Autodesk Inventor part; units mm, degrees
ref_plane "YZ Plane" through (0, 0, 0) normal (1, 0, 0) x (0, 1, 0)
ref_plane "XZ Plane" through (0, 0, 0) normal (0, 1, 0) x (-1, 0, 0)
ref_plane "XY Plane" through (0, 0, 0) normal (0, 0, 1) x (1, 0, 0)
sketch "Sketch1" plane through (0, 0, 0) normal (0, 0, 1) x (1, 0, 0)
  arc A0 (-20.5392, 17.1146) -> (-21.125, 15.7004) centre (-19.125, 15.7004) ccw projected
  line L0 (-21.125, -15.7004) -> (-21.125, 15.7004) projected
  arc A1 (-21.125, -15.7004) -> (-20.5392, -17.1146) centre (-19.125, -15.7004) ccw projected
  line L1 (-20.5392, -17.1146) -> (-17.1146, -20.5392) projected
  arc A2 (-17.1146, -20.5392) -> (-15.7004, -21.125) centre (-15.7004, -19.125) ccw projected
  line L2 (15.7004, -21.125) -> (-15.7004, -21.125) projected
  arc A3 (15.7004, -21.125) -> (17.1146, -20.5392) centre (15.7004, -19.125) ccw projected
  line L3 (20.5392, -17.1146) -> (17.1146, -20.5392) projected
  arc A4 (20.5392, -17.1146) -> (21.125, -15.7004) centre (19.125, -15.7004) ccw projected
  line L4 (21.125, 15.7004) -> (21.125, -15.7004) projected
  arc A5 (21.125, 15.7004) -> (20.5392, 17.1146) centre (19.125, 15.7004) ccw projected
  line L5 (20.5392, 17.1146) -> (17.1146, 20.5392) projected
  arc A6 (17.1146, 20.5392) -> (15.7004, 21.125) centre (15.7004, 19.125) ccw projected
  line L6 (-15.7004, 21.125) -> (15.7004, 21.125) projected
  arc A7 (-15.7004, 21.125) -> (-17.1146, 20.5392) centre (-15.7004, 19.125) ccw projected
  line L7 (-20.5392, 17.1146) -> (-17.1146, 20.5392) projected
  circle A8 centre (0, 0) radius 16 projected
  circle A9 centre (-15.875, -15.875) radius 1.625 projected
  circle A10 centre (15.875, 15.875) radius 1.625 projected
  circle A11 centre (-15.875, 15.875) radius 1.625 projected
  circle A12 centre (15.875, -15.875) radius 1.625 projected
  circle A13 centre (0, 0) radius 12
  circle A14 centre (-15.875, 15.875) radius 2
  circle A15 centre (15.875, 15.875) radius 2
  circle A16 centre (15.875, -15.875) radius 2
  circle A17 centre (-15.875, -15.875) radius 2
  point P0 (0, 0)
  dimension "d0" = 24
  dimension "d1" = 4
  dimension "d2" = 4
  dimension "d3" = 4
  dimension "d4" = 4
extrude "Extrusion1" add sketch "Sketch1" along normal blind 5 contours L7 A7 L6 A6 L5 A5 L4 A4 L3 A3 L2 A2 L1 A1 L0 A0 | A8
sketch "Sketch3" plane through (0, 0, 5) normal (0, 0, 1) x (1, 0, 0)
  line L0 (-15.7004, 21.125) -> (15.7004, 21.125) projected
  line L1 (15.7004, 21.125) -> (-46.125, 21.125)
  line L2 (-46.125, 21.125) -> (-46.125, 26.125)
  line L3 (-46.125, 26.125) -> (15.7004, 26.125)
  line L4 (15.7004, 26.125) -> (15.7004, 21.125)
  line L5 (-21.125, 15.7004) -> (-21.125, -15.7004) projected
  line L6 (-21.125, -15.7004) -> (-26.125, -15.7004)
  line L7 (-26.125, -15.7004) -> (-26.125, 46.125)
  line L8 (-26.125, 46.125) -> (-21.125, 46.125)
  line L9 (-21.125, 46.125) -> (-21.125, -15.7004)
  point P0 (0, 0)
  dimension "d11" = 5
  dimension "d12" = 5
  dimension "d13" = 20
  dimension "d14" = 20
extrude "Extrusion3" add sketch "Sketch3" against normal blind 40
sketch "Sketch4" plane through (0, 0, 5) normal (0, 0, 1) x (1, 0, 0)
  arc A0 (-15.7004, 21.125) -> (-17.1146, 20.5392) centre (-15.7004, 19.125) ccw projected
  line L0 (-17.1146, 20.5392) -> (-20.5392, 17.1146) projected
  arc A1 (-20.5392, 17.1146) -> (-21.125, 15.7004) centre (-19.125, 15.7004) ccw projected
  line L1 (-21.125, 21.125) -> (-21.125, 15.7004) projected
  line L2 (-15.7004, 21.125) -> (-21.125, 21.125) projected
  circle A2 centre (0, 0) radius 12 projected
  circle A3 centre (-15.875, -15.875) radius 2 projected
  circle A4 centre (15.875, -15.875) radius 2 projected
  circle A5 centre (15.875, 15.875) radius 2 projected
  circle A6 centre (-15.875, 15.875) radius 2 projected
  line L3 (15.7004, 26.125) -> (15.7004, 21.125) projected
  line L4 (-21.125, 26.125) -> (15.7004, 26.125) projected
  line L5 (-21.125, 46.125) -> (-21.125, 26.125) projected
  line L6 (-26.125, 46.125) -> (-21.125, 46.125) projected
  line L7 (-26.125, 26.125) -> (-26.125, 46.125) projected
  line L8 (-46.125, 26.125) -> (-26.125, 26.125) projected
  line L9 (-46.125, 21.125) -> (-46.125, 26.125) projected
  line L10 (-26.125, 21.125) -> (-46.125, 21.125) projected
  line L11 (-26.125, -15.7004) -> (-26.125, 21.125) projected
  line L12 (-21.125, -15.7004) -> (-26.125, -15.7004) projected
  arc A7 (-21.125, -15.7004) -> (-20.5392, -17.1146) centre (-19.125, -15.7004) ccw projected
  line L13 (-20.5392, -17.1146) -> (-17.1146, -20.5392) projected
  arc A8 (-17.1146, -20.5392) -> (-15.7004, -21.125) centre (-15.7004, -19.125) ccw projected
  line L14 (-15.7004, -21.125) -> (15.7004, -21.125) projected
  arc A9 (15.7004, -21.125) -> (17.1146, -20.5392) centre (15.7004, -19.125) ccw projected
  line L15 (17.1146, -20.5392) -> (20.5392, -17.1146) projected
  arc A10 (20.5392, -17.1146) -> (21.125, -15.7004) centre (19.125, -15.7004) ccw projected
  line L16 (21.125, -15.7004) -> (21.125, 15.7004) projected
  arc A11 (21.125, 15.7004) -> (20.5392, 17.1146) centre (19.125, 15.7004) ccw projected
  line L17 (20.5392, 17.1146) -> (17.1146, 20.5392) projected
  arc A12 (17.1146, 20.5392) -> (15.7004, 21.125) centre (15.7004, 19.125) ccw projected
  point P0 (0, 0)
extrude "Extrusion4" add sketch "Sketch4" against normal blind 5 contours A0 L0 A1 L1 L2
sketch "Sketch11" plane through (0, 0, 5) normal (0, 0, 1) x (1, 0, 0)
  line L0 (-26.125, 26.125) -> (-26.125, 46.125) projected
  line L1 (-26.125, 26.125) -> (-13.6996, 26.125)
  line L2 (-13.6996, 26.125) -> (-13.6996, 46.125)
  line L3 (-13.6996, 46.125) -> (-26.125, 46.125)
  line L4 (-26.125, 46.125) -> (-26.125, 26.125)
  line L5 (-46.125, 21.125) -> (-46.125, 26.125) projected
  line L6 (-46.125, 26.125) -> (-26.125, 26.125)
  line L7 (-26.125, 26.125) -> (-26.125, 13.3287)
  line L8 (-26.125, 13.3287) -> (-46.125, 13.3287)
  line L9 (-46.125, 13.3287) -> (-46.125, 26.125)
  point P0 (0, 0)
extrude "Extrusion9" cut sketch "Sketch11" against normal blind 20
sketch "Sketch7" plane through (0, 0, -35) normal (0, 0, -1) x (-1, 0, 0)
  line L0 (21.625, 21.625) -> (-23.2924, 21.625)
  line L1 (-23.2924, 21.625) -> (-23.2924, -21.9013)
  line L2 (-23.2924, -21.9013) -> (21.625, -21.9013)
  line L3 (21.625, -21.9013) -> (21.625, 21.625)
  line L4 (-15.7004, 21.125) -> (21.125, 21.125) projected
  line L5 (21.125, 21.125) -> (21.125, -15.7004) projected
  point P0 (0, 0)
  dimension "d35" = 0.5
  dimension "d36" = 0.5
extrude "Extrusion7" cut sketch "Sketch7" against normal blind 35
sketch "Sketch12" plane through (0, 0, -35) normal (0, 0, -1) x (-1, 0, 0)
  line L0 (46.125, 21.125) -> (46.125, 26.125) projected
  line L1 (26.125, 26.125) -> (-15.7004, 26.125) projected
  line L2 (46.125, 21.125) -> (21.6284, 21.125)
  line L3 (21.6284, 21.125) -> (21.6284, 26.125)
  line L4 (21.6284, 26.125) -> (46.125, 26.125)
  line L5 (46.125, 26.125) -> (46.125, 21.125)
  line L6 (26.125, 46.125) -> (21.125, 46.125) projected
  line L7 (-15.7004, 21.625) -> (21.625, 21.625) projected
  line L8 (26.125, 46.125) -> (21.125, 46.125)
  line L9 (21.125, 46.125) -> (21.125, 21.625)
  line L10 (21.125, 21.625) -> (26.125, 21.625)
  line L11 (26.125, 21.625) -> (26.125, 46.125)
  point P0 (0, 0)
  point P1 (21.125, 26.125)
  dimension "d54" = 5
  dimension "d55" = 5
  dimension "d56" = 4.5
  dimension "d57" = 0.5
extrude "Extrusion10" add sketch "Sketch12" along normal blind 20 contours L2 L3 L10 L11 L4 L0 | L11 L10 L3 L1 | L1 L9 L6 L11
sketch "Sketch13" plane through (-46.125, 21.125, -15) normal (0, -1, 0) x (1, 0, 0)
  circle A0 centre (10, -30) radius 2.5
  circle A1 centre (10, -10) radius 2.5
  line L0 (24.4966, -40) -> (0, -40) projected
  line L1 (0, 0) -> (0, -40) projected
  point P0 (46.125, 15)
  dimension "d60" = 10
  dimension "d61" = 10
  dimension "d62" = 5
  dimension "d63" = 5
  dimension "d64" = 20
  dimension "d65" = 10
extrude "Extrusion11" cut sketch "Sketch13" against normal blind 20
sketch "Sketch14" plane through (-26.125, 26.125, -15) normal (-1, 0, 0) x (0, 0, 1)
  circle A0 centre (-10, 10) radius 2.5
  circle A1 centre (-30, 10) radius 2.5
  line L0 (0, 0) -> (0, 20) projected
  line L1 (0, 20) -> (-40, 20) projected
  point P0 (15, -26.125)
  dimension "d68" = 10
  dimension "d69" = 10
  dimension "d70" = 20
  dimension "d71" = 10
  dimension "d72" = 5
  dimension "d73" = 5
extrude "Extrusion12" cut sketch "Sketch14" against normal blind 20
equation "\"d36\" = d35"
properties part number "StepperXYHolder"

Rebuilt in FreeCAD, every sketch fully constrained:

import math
import FreeCAD as App
import Part
import Sketcher

doc = App.newDocument("Part")
body = doc.addObject("PartDesign::Body", "Body")

# Sketch on XY plane
sketch1 = doc.addObject("Sketcher::SketchObject", "Sketch")
body.addObject(sketch1)
sketch1.AttachmentSupport = (doc.XY_Plane, [""])
sketch1.MapMode = "FlatFace"
sketch1.addGeometry([
    Part.LineSegment(App.Vector(-17.1, 20.5, 0), App.Vector(-20.5, 17.1, 0)),  # 0
    Part.ArcOfCircle(Part.Circle(App.Vector(-19.1, 15.7, 0), App.Vector(0, 0, 1), 2), math.radians(135), math.radians(180)),  # 1
    Part.LineSegment(App.Vector(-21.1, 15.7, 0), App.Vector(-21.1, -15.7, 0)),  # 2
    Part.ArcOfCircle(Part.Circle(App.Vector(-19.1, -15.7, 0), App.Vector(0, 0, 1), 2), math.radians(180), math.radians(225)),  # 3
    Part.LineSegment(App.Vector(-20.5, -17.1, 0), App.Vector(-17.1, -20.5, 0)),  # 4
    Part.ArcOfCircle(Part.Circle(App.Vector(-15.7, -19.1, 0), App.Vector(0, 0, 1), 2), math.radians(-135), math.radians(-90)),  # 5
    Part.LineSegment(App.Vector(-15.7, -21.1, 0), App.Vector(15.7, -21.1, 0)),  # 6
    Part.ArcOfCircle(Part.Circle(App.Vector(15.7, -19.1, 0), App.Vector(0, 0, 1), 2), math.radians(-90), math.radians(-45)),  # 7
    Part.LineSegment(App.Vector(17.1, -20.5, 0), App.Vector(20.5, -17.1, 0)),  # 8
    Part.ArcOfCircle(Part.Circle(App.Vector(19.1, -15.7, 0), App.Vector(0, 0, 1), 2), math.radians(-45), math.radians(0)),  # 9
    Part.LineSegment(App.Vector(21.1, -15.7, 0), App.Vector(21.1, 15.7, 0)),  # 10
    Part.ArcOfCircle(Part.Circle(App.Vector(19.1, 15.7, 0), App.Vector(0, 0, 1), 2), math.radians(0), math.radians(45)),  # 11
    Part.LineSegment(App.Vector(20.5, 17.1, 0), App.Vector(17.1, 20.5, 0)),  # 12
    Part.ArcOfCircle(Part.Circle(App.Vector(15.7, 19.1, 0), App.Vector(0, 0, 1), 2), math.radians(45), math.radians(90)),  # 13
    Part.LineSegment(App.Vector(15.7, 21.1, 0), App.Vector(-15.7, 21.1, 0)),  # 14
    Part.ArcOfCircle(Part.Circle(App.Vector(-15.7, 19.1, 0), App.Vector(0, 0, 1), 2), math.radians(90), math.radians(135)),  # 15
    Part.Circle(App.Vector(-15.9, -15.9, 0), App.Vector(0, 0, 1), 2),  # 16
    Part.Circle(App.Vector(15.9, -15.9, 0), App.Vector(0, 0, 1), 2),  # 17
    Part.Circle(App.Vector(-15.9, 15.9, 0), App.Vector(0, 0, 1), 2),  # 18
    Part.Circle(App.Vector(15.9, 15.9, 0), App.Vector(0, 0, 1), 2),  # 19
    Part.Circle(App.Vector(0, 0, 0), App.Vector(0, 0, 1), 12),  # 20
], False)
sketch1.addConstraint([
    Sketcher.Constraint("Tangent", 0, 2, 1, 1),
    Sketcher.Constraint("Tangent", 1, 2, 2, 1),
    Sketcher.Constraint("Tangent", 2, 2, 3, 1),
    Sketcher.Constraint("Tangent", 3, 2, 4, 1),
    Sketcher.Constraint("Tangent", 4, 2, 5, 1),
    Sketcher.Constraint("Tangent", 5, 2, 6, 1),
    Sketcher.Constraint("Tangent", 6, 2, 7, 1),
    Sketcher.Constraint("Tangent", 7, 2, 8, 1),
    Sketcher.Constraint("Tangent", 8, 2, 9, 1),
    Sketcher.Constraint("Tangent", 9, 2, 10, 1),
    Sketcher.Constraint("Tangent", 10, 2, 11, 1),
    Sketcher.Constraint("Tangent", 11, 2, 12, 1),
    Sketcher.Constraint("Tangent", 12, 2, 13, 1),
    Sketcher.Constraint("Tangent", 13, 2, 14, 1),
    Sketcher.Constraint("Tangent", 14, 2, 15, 1),
    Sketcher.Constraint("Tangent", 15, 2, 0, 1),
    Sketcher.Constraint("Vertical", 2),
    Sketcher.Constraint("Horizontal", 6),
    Sketcher.Constraint("Vertical", 10),
    Sketcher.Constraint("Horizontal", 14),
    Sketcher.Constraint("Coincident", 20, 3, -1, 1),
    Sketcher.Constraint("Equal", 1, 3),
    Sketcher.Constraint("Equal", 3, 5),
    Sketcher.Constraint("Equal", 5, 7),
    Sketcher.Constraint("Equal", 7, 9),
    Sketcher.Constraint("Equal", 9, 11),
    Sketcher.Constraint("Equal", 11, 13),
    Sketcher.Constraint("Equal", 13, 15),
    Sketcher.Constraint("Equal", 15, 16),
    Sketcher.Constraint("Equal", 16, 17),
    Sketcher.Constraint("Equal", 17, 18),
    Sketcher.Constraint("Equal", 18, 19),
    Sketcher.Constraint("Symmetric", 1, 3, 9, 3, -1, 1),
    Sketcher.Constraint("Symmetric", 5, 3, 13, 3, -1, 1),
    Sketcher.Constraint("Symmetric", 17, 3, 18, 3, -1, 1),
    Sketcher.Constraint("Symmetric", 16, 3, 19, 3, -1, 1),
    Sketcher.Constraint("Symmetric", 16, 3, 17, 3, -2),
    Sketcher.Constraint("Symmetric", 4, 2, 7, 2, -2),
    Sketcher.Constraint("Symmetric", 0, 2, 11, 2, -2),
    Sketcher.Constraint("Perpendicular", 0, 4),
    Sketcher.Constraint("Equal", 14, 2),
    Sketcher.Constraint("Diameter", 16, 4.0),
    Sketcher.Constraint("Diameter", 20, 24.0),
    Sketcher.Constraint("DistanceX", 16, 3, 9, 3, 35.0),
    Sketcher.Constraint("DistanceX", 3, 3, 9, 3, 38.25),
    Sketcher.Constraint("DistanceY", 5, 3, 16, 3, 3.25),
    Sketcher.Constraint("Distance", 0, 4.843),
])
pad1 = doc.addObject("PartDesign::Pad", "Pad")
body.addObject(pad1)
pad1.Profile = sketch1
pad1.Length = 5

# Sketch on XY plane
sketch2 = doc.addObject("Sketcher::SketchObject", "Sketch001")
body.addObject(sketch2)
sketch2.AttachmentSupport = (doc.XY_Plane, [""])
sketch2.MapMode = "FlatFace"
sketch2.AttachmentOffset = App.Placement(App.Vector(0, 0, 5), App.Rotation())
sketch2.addGeometry([
    Part.LineSegment(App.Vector(-21, 21, 0), App.Vector(16, 21, 0)),  # 0
    Part.LineSegment(App.Vector(16, 21, 0), App.Vector(16, 26, 0)),  # 1
    Part.LineSegment(App.Vector(16, 26, 0), App.Vector(-21, 26, 0)),  # 2
    Part.LineSegment(App.Vector(-21, 26, 0), App.Vector(-21, 46, 0)),  # 3
    Part.LineSegment(App.Vector(-21, 46, 0), App.Vector(-26, 46, 0)),  # 4
    Part.LineSegment(App.Vector(-26, 46, 0), App.Vector(-26, 26, 0)),  # 5
    Part.LineSegment(App.Vector(-26, 26, 0), App.Vector(-46, 26, 0)),  # 6
    Part.LineSegment(App.Vector(-46, 26, 0), App.Vector(-46, 21, 0)),  # 7
    Part.LineSegment(App.Vector(-46, 21, 0), App.Vector(-26, 21, 0)),  # 8
    Part.LineSegment(App.Vector(-26, 21, 0), App.Vector(-26, -16, 0)),  # 9
    Part.LineSegment(App.Vector(-26, -16, 0), App.Vector(-21, -16, 0)),  # 10
    Part.LineSegment(App.Vector(-21, -16, 0), App.Vector(-21, 21, 0)),  # 11
], False)
sketch2.addConstraint([
    Sketcher.Constraint("Coincident", 0, 2, 1, 1),
    Sketcher.Constraint("Coincident", 1, 2, 2, 1),
    Sketcher.Constraint("Coincident", 2, 2, 3, 1),
    Sketcher.Constraint("Coincident", 3, 2, 4, 1),
    Sketcher.Constraint("Coincident", 4, 2, 5, 1),
    Sketcher.Constraint("Coincident", 5, 2, 6, 1),
    Sketcher.Constraint("Coincident", 6, 2, 7, 1),
    Sketcher.Constraint("Coincident", 7, 2, 8, 1),
    Sketcher.Constraint("Coincident", 8, 2, 9, 1),
    Sketcher.Constraint("Coincident", 9, 2, 10, 1),
    Sketcher.Constraint("Coincident", 10, 2, 11, 1),
    Sketcher.Constraint("Coincident", 11, 2, 0, 1),
    Sketcher.Constraint("Horizontal", 0),
    Sketcher.Constraint("Vertical", 1),
    Sketcher.Constraint("Horizontal", 2),
    Sketcher.Constraint("Vertical", 3),
    Sketcher.Constraint("Horizontal", 4),
    Sketcher.Constraint("Vertical", 5),
    Sketcher.Constraint("Horizontal", 6),
    Sketcher.Constraint("Vertical", 7),
    Sketcher.Constraint("Horizontal", 8),
    Sketcher.Constraint("Vertical", 9),
    Sketcher.Constraint("Horizontal", 10),
    Sketcher.Constraint("Vertical", 11),
    Sketcher.Constraint("Horizontal", 2, 2, 5, 2),
    Sketcher.Constraint("Horizontal", 0, 2, 7, 2),
    Sketcher.Constraint("Vertical", 5, 2, 8, 2),
    Sketcher.Constraint("Vertical", 3, 2, 10, 2),
    Sketcher.Constraint("Equal", 10, 1),
    Sketcher.Constraint("Equal", 8, 3),
    Sketcher.Constraint("Equal", 2, 9),
    Sketcher.Constraint("DistanceX", 4, 2, 4, 1, 5.0),
    Sketcher.Constraint("DistanceX", 6, 2, 6, 1, 20.0),
    Sketcher.Constraint("DistanceX", 0, 1, 0, 2, 36.8254),
    Sketcher.Constraint("DistanceY", -1, 1, 0, 2, 21.125),
    Sketcher.Constraint("DistanceX", 2, 2, -1, 1, 21.125),
])
pad2 = doc.addObject("PartDesign::Pad", "Pad001")
body.addObject(pad2)
pad2.Profile = sketch2
pad2.Length = 40
pad2.Reversed = True

# Sketch on XY plane
sketch3 = doc.addObject("Sketcher::SketchObject", "Sketch002")
body.addObject(sketch3)
sketch3.AttachmentSupport = (doc.XY_Plane, [""])
sketch3.MapMode = "FlatFace"
sketch3.AttachmentOffset = App.Placement(App.Vector(0, 0, 5), App.Rotation())
sketch3.addGeometry([
    Part.ArcOfCircle(Part.Circle(App.Vector(-15.7, 19.1, 0), App.Vector(0, 0, 1), 2), math.radians(90), math.radians(135)),  # 0
    Part.LineSegment(App.Vector(-15.7, 21.1, 0), App.Vector(-21.1, 21.1, 0)),  # 1
    Part.LineSegment(App.Vector(-21.1, 21.1, 0), App.Vector(-21.1, 15.7, 0)),  # 2
    Part.ArcOfCircle(Part.Circle(App.Vector(-19.1, 15.7, 0), App.Vector(0, 0, 1), 2), math.radians(135), math.radians(180)),  # 3
    Part.LineSegment(App.Vector(-20.5, 17.1, 0), App.Vector(-17.1, 20.5, 0)),  # 4
], False)
sketch3.addConstraint([
    Sketcher.Constraint("Tangent", 0, 1, 1, 1),
    Sketcher.Constraint("Coincident", 1, 2, 2, 1),
    Sketcher.Constraint("Tangent", 2, 2, 3, 2),
    Sketcher.Constraint("Tangent", 3, 1, 4, 1),
    Sketcher.Constraint("Tangent", 4, 2, 0, 2),
    Sketcher.Constraint("Horizontal", 1),
    Sketcher.Constraint("Vertical", 2),
    Sketcher.Constraint("Equal", 0, 3),
    Sketcher.Constraint("Equal", 1, 2),
    Sketcher.Constraint("Radius", 0, 2.0),
    Sketcher.Constraint("Distance", 4, 4.843),
    Sketcher.Constraint("DistanceY", -1, 1, 0, 3, 19.125),
    Sketcher.Constraint("DistanceX", 3, 3, -1, 1, 19.125),
])
pad3 = doc.addObject("PartDesign::Pad", "Pad002")
body.addObject(pad3)
pad3.Profile = sketch3
pad3.Length = 5
pad3.Reversed = True

# Sketch on XY plane
sketch4 = doc.addObject("Sketcher::SketchObject", "Sketch003")
body.addObject(sketch4)
sketch4.AttachmentSupport = (doc.XY_Plane, [""])
sketch4.MapMode = "FlatFace"
sketch4.AttachmentOffset = App.Placement(App.Vector(0, 0, 5), App.Rotation())
sketch4.addGeometry([
    Part.LineSegment(App.Vector(-26, 46, 0), App.Vector(-26, 26, 0)),  # 0
    Part.LineSegment(App.Vector(-26, 26, 0), App.Vector(-14, 26, 0)),  # 1
    Part.LineSegment(App.Vector(-14, 26, 0), App.Vector(-14, 46, 0)),  # 2
    Part.LineSegment(App.Vector(-14, 46, 0), App.Vector(-26, 46, 0)),  # 3
    Part.LineSegment(App.Vector(-26, 13, 0), App.Vector(-26, 26, 0)),  # 4
    Part.LineSegment(App.Vector(-26, 26, 0), App.Vector(-46, 26, 0)),  # 5
    Part.LineSegment(App.Vector(-46, 26, 0), App.Vector(-46, 13, 0)),  # 6
    Part.LineSegment(App.Vector(-46, 13, 0), App.Vector(-26, 13, 0)),  # 7
], False)
sketch4.addConstraint([
    Sketcher.Constraint("Coincident", 0, 2, 1, 1),
    Sketcher.Constraint("Coincident", 1, 2, 2, 1),
    Sketcher.Constraint("Coincident", 2, 2, 3, 1),
    Sketcher.Constraint("Coincident", 3, 2, 0, 1),
    Sketcher.Constraint("Coincident", 4, 2, 5, 1),
    Sketcher.Constraint("Coincident", 5, 2, 6, 1),
    Sketcher.Constraint("Coincident", 6, 2, 7, 1),
    Sketcher.Constraint("Coincident", 7, 2, 4, 1),
    Sketcher.Constraint("Vertical", 0),
    Sketcher.Constraint("Horizontal", 1),
    Sketcher.Constraint("Vertical", 2),
    Sketcher.Constraint("Horizontal", 3),
    Sketcher.Constraint("Vertical", 4),
    Sketcher.Constraint("Horizontal", 5),
    Sketcher.Constraint("Vertical", 6),
    Sketcher.Constraint("Horizontal", 7),
    Sketcher.Constraint("Coincident", 4, 2, 0, 2),
    Sketcher.Constraint("Equal", 7, 0),
    Sketcher.Constraint("DistanceX", 5, 2, 5, 1, 20.0),
    Sketcher.Constraint("DistanceX", 1, 1, 1, 2, 12.4254),
    Sketcher.Constraint("DistanceY", 4, 1, 4, 2, 12.7963),
    Sketcher.Constraint("DistanceX", 0, 2, -1, 1, 26.125),
    Sketcher.Constraint("DistanceY", -1, 1, 0, 2, 26.125),
])
pocket1 = doc.addObject("PartDesign::Pocket", "Pocket")
body.addObject(pocket1)
pocket1.Profile = sketch4
pocket1.Length = 20

# Sketch on XY plane
sketch5 = doc.addObject("Sketcher::SketchObject", "Sketch004")
body.addObject(sketch5)
sketch5.AttachmentSupport = (doc.XY_Plane, [""])
sketch5.MapMode = "FlatFace"
sketch5.AttachmentOffset = App.Placement(App.Vector(0, 0, -35), App.Rotation())
sketch5.addGeometry([
    Part.LineSegment(App.Vector(-22, -22, 0), App.Vector(-22, 22, 0)),
    Part.LineSegment(App.Vector(-22, 22, 0), App.Vector(23, 22, 0)),
    Part.LineSegment(App.Vector(23, 22, 0), App.Vector(23, -22, 0)),
    Part.LineSegment(App.Vector(23, -22, 0), App.Vector(-22, -22, 0)),
], False)
sketch5.addConstraint([
    Sketcher.Constraint("Coincident", 0, 2, 1, 1),
    Sketcher.Constraint("Coincident", 1, 2, 2, 1),
    Sketcher.Constraint("Coincident", 2, 2, 3, 1),
    Sketcher.Constraint("Coincident", 3, 2, 0, 1),
    Sketcher.Constraint("Vertical", 0),
    Sketcher.Constraint("Horizontal", 1),
    Sketcher.Constraint("Vertical", 2),
    Sketcher.Constraint("Horizontal", 3),
    Sketcher.Constraint("DistanceX", 1, 1, 1, 2, 44.9174),
    Sketcher.Constraint("DistanceY", 0, 1, 0, 2, 43.5263),
    Sketcher.Constraint("DistanceX", 0, 2, -1, 1, 21.625),
    Sketcher.Constraint("DistanceY", -1, 1, 0, 2, 21.625),
])
pocket2 = doc.addObject("PartDesign::Pocket", "Pocket001")
body.addObject(pocket2)
pocket2.Profile = sketch5
pocket2.Length = 35
pocket2.Reversed = True

# Sketch on XY plane
sketch6 = doc.addObject("Sketcher::SketchObject", "Sketch005")
body.addObject(sketch6)
sketch6.AttachmentSupport = (doc.XY_Plane, [""])
sketch6.MapMode = "FlatFace"
sketch6.AttachmentOffset = App.Placement(App.Vector(0, 0, -35), App.Rotation())
sketch6.addGeometry([
    Part.LineSegment(App.Vector(-21.6, 21.1, 0), App.Vector(-46.1, 21.1, 0)),  # 0
    Part.LineSegment(App.Vector(-46.1, 21.1, 0), App.Vector(-46.1, 26.1, 0)),  # 1
    Part.LineSegment(App.Vector(-46.1, 26.1, 0), App.Vector(-26.1, 26.1, 0)),  # 2
    Part.LineSegment(App.Vector(-26.1, 26.1, 0), App.Vector(-26.1, 46.1, 0)),  # 3
    Part.LineSegment(App.Vector(-26.1, 46.1, 0), App.Vector(-21.1, 46.1, 0)),  # 4
    Part.LineSegment(App.Vector(-21.1, 46.1, 0), App.Vector(-21.1, 26.1, 0)),  # 5
    Part.LineSegment(App.Vector(-21.1, 26.1, 0), App.Vector(-21.6, 26.1, 0)),  # 6
    Part.LineSegment(App.Vector(-21.6, 26.1, 0), App.Vector(-21.6, 21.1, 0)),  # 7
], False)
sketch6.addConstraint([
    Sketcher.Constraint("Coincident", 0, 2, 1, 1),
    Sketcher.Constraint("Coincident", 1, 2, 2, 1),
    Sketcher.Constraint("Coincident", 2, 2, 3, 1),
    Sketcher.Constraint("Coincident", 3, 2, 4, 1),
    Sketcher.Constraint("Coincident", 4, 2, 5, 1),
    Sketcher.Constraint("Coincident", 5, 2, 6, 1),
    Sketcher.Constraint("Coincident", 6, 2, 7, 1),
    Sketcher.Constraint("Coincident", 7, 2, 0, 1),
    Sketcher.Constraint("Horizontal", 0),
    Sketcher.Constraint("Vertical", 1),
    Sketcher.Constraint("Horizontal", 2),
    Sketcher.Constraint("Vertical", 3),
    Sketcher.Constraint("Horizontal", 4),
    Sketcher.Constraint("Vertical", 5),
    Sketcher.Constraint("Horizontal", 6),
    Sketcher.Constraint("Vertical", 7),
    Sketcher.Constraint("Horizontal", 2, 2, 5, 2),
    Sketcher.Constraint("Equal", 4, 1),
    Sketcher.Constraint("Equal", 2, 3),
    Sketcher.Constraint("DistanceX", 4, 1, 4, 2, 5.0),
    Sketcher.Constraint("DistanceX", 2, 1, 2, 2, 20.0),
    Sketcher.Constraint("DistanceX", 0, 2, 0, 1, 24.4966),
    Sketcher.Constraint("DistanceX", 0, 2, -1, 1, 46.125),
    Sketcher.Constraint("DistanceY", -1, 1, 0, 2, 21.125),
])
pad4 = doc.addObject("PartDesign::Pad", "Pad003")
body.addObject(pad4)
pad4.Profile = sketch6
pad4.Length = 20
pad4.Reversed = True

# Sketch on XZ plane
sketch7 = doc.addObject("Sketcher::SketchObject", "Sketch006")
body.addObject(sketch7)
sketch7.AttachmentSupport = (doc.XZ_Plane, [""])
sketch7.MapMode = "FlatFace"
sketch7.AttachmentOffset = App.Placement(App.Vector(0, 0, -21.125), App.Rotation())
sketch7.addGeometry([
    Part.Circle(App.Vector(-36.1, -45, 0), App.Vector(0, 0, 1), 2.5),
    Part.Circle(App.Vector(-36.1, -25, 0), App.Vector(0, 0, 1), 2.5),
], False)
sketch7.addConstraint([
    Sketcher.Constraint("Equal", 0, 1),
    Sketcher.Constraint("Vertical", 0, 3, 1, 3),
    Sketcher.Constraint("Diameter", 0, 5.0),
    Sketcher.Constraint("DistanceY", 0, 3, 1, 3, 20.0),
    Sketcher.Constraint("DistanceY", 0, 3, -1, 1, 45.0),
    Sketcher.Constraint("DistanceX", 0, 3, -1, 1, 36.125),
])
pocket3 = doc.addObject("PartDesign::Pocket", "Pocket002")
body.addObject(pocket3)
pocket3.Profile = sketch7
pocket3.Length = 20

# Sketch on YZ plane
sketch8 = doc.addObject("Sketcher::SketchObject", "Sketch007")
body.addObject(sketch8)
sketch8.AttachmentSupport = (doc.YZ_Plane, [""])
sketch8.MapMode = "FlatFace"
sketch8.AttachmentOffset = App.Placement(App.Vector(0, 0, -26.125), App.Rotation())
sketch8.addGeometry([
    Part.Circle(App.Vector(36.1, -25, 0), App.Vector(0, 0, 1), 2.5),
    Part.Circle(App.Vector(36.1, -45, 0), App.Vector(0, 0, 1), 2.5),
], False)
sketch8.addConstraint([
    Sketcher.Constraint("Equal", 0, 1),
    Sketcher.Constraint("Vertical", 0, 3, 1, 3),
    Sketcher.Constraint("Diameter", 0, 5.0),
    Sketcher.Constraint("DistanceY", 1, 3, 0, 3, 20.0),
    Sketcher.Constraint("DistanceY", 0, 3, -1, 1, 25.0),
    Sketcher.Constraint("DistanceX", -1, 1, 0, 3, 36.125),
])
pocket4 = doc.addObject("PartDesign::Pocket", "Pocket003")
body.addObject(pocket4)
pocket4.Profile = sketch8
pocket4.Length = 20
pocket4.Reversed = True

doc.recompute()
